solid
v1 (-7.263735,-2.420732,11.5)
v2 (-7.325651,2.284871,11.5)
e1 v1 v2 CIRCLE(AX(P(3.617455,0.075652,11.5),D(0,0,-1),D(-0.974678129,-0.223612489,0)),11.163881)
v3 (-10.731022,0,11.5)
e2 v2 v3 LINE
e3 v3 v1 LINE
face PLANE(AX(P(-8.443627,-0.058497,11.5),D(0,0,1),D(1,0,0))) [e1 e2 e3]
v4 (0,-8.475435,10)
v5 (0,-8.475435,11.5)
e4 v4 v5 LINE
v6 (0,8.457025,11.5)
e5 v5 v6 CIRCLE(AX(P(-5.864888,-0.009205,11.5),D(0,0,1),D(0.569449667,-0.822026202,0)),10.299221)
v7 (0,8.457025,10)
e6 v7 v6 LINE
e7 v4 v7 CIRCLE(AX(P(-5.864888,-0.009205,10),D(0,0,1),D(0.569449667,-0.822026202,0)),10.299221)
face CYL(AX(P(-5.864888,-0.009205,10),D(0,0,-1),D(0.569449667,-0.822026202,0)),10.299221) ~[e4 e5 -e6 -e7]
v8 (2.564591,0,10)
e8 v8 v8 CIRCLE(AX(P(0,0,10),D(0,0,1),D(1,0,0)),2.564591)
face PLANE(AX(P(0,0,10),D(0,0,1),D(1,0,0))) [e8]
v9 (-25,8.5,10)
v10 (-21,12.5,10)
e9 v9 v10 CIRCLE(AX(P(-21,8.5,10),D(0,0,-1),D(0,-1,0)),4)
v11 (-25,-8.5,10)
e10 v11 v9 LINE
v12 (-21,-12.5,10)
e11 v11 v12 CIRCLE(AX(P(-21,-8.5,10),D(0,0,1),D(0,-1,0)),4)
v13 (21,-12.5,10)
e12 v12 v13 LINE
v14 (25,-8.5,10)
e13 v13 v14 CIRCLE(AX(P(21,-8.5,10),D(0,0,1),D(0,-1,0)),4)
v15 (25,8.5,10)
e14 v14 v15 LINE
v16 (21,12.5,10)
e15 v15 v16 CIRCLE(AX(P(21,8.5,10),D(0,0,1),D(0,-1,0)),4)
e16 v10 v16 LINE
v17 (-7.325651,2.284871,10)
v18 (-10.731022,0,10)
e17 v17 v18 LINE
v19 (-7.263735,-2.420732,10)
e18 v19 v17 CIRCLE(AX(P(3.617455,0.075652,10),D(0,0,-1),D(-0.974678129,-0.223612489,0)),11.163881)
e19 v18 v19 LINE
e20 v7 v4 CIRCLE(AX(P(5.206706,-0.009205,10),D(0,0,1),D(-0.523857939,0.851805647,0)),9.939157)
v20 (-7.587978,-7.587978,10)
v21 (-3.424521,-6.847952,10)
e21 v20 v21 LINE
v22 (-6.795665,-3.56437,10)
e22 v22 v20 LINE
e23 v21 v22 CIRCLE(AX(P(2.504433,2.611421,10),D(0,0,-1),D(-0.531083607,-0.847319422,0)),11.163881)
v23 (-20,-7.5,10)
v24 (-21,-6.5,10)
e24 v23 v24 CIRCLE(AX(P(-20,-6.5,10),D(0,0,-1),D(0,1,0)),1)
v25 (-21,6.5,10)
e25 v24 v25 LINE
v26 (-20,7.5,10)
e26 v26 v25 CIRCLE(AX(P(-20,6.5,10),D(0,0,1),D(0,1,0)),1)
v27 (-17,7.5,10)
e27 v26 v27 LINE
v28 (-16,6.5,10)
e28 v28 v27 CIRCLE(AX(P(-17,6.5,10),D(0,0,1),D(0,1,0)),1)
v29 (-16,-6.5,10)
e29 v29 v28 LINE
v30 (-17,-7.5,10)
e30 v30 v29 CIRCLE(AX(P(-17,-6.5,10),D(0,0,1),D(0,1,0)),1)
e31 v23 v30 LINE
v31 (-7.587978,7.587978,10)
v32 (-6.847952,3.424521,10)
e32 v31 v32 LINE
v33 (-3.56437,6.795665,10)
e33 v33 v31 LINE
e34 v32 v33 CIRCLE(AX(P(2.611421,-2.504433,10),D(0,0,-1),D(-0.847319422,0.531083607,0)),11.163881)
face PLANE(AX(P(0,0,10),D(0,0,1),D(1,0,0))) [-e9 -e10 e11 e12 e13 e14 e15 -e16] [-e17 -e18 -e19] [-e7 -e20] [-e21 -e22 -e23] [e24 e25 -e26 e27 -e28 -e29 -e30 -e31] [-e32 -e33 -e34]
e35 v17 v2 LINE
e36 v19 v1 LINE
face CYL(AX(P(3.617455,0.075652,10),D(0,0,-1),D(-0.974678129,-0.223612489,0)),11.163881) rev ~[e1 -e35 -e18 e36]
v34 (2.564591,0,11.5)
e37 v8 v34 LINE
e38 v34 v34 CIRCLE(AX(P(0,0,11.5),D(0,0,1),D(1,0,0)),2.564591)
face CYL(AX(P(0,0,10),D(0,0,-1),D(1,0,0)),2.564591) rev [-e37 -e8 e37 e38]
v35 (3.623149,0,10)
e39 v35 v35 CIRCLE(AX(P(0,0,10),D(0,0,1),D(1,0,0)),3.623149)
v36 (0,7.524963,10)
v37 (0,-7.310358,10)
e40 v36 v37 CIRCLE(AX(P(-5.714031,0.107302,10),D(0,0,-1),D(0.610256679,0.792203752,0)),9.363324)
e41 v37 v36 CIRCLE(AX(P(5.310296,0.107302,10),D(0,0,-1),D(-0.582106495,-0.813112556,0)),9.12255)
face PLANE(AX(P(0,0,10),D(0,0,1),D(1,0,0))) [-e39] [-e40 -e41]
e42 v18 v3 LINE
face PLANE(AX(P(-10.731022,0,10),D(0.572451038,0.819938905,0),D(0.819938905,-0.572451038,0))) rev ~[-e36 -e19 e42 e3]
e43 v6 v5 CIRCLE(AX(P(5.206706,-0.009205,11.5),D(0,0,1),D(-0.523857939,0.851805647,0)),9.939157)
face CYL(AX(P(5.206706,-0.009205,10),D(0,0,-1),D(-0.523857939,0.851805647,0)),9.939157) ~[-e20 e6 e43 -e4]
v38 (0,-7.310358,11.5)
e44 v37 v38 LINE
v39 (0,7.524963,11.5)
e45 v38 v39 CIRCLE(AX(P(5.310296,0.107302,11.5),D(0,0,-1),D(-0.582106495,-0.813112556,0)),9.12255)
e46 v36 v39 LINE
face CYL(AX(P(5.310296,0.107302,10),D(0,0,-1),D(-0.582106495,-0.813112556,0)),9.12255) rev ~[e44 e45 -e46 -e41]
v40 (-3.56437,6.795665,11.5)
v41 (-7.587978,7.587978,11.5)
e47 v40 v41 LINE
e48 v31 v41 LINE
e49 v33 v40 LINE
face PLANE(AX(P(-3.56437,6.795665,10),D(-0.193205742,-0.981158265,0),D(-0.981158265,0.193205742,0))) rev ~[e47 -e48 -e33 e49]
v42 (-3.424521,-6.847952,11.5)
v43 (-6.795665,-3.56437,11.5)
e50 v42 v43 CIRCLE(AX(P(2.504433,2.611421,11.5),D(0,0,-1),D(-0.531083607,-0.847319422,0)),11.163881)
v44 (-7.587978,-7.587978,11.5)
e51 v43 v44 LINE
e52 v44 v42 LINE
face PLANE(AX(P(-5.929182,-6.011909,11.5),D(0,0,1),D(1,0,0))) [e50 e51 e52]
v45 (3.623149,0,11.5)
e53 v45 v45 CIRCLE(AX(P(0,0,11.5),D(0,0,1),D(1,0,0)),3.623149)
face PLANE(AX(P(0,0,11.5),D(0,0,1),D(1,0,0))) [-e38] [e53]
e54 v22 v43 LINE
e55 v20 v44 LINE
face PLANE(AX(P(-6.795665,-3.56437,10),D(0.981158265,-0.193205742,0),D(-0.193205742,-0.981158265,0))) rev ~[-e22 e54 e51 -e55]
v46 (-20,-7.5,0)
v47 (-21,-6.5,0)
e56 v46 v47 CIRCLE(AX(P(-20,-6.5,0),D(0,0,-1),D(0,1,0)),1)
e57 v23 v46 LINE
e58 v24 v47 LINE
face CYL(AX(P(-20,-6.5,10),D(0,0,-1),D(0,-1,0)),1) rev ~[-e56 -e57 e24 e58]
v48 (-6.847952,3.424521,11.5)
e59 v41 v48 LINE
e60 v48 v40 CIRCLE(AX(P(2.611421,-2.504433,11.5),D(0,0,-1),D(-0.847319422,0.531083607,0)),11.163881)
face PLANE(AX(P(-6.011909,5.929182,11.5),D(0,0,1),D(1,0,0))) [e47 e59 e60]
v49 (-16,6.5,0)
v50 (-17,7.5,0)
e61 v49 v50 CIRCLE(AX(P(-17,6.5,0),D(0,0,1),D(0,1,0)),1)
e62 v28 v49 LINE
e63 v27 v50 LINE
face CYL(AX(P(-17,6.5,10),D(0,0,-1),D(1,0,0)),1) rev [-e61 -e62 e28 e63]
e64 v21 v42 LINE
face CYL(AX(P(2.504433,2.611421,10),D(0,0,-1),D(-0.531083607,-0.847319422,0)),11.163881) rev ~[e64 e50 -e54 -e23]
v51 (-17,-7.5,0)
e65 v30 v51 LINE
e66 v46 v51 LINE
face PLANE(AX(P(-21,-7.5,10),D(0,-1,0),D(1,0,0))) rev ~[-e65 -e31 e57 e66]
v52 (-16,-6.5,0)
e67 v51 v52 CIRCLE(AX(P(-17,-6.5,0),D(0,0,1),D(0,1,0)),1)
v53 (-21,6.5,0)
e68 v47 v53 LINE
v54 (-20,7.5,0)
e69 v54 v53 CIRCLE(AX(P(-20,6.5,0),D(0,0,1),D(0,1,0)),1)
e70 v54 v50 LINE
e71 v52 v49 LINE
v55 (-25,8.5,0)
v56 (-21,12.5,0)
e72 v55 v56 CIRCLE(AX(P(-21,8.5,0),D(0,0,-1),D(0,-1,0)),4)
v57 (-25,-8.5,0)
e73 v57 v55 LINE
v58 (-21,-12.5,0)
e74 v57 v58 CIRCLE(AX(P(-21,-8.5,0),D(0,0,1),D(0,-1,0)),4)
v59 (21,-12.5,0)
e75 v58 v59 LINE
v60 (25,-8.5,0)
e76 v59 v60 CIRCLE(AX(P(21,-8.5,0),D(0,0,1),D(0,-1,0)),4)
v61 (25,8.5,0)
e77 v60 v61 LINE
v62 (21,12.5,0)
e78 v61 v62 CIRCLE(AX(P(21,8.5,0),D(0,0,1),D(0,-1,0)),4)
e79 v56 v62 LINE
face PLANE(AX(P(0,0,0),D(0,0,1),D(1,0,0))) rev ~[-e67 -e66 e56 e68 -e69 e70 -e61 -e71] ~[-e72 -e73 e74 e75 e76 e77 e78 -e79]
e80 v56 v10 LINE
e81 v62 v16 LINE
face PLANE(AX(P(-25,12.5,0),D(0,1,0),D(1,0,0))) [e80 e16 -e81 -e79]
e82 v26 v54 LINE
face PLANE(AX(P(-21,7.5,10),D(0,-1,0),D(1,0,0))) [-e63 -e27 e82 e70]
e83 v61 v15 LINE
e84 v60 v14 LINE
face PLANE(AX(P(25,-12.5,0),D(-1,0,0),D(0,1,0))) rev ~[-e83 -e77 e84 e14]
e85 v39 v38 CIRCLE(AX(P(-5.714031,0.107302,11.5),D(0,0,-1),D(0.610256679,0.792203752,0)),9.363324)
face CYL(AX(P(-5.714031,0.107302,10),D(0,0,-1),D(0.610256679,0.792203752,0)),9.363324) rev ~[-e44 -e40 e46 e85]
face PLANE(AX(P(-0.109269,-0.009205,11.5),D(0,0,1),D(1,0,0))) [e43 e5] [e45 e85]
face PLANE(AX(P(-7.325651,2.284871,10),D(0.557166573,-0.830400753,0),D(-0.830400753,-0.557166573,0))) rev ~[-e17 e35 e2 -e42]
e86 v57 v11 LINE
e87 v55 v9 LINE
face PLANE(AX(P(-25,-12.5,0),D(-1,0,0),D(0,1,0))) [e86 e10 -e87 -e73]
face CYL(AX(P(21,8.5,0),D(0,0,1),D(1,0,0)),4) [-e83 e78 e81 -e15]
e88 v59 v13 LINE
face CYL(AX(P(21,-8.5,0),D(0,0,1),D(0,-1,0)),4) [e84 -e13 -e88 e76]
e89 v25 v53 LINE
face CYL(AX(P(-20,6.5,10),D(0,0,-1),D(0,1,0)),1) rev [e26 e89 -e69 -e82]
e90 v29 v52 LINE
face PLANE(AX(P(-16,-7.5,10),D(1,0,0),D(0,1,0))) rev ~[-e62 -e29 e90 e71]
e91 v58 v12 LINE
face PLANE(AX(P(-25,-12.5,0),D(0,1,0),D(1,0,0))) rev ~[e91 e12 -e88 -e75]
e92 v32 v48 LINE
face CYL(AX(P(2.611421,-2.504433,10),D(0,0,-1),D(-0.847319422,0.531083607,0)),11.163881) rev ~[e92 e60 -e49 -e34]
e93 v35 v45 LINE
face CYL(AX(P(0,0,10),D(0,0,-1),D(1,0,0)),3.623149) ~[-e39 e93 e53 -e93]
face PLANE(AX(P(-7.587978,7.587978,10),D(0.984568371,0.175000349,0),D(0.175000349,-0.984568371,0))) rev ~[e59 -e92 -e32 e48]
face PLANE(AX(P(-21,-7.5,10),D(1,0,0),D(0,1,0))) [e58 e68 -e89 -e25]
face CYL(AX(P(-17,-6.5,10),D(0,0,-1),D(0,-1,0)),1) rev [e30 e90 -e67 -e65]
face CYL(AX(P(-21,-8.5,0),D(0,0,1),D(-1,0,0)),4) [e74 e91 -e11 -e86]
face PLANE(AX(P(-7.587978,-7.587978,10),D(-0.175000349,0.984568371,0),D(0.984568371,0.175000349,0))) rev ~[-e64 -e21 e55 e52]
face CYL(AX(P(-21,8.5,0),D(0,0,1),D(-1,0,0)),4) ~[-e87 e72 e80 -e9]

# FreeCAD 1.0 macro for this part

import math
import FreeCAD as App
import Part
import Sketcher

V = App.Vector
Q = App.Units.Quantity


def edges_at(feature, points):
    """Names of the edges that pass closest to the given points."""
    edges = feature.Shape.Edges
    near = lambda p: min(range(len(edges)), key=lambda i: edges[i].distToShape(Part.Vertex(*p))[0])
    return sorted({f"Edge{near(p) + 1}" for p in points})


def add_polygon(sketch, points):
    """Adds a closed chain of lines whose ends are joined by coincident constraints."""
    first, n = sketch.GeometryCount, len(points)
    for a, b in zip(points, points[1:] + points[:1]):
        sketch.addGeometry(Part.LineSegment(App.Vector(*a, 0), App.Vector(*b, 0)), False)
    for i in range(n):
        sketch.addConstraint(Sketcher.Constraint("Coincident", first + i, 2, first + (i + 1) % n, 1))

doc = App.newDocument("Part")
body = doc.addObject("PartDesign::Body", "Body")

# Sketch on XY plane
sketch1 = doc.addObject("Sketcher::SketchObject", "Sketch")
body.addObject(sketch1)
sketch1.AttachmentSupport = (doc.XY_Plane, [""])
sketch1.MapMode = "FlatFace"
add_polygon(sketch1, [(-25, 12), (-25, -12), (25, -12), (25, 12)])  # lines 0-3
sketch1.addConstraint([
    Sketcher.Constraint("Vertical", 0),
    Sketcher.Constraint("Horizontal", 1),
    Sketcher.Constraint("Vertical", 2),
    Sketcher.Constraint("Horizontal", 3),
    Sketcher.Constraint("Symmetric", 0, 2, 2, 2, -1, 1),
    Sketcher.Constraint("DistanceX", 1, 1, 1, 2, Q("50 mm")),
    Sketcher.Constraint("DistanceY", 0, 2, 0, 1, Q("25 mm")),
])
pad1 = doc.addObject("PartDesign::Pad", "Pad")
body.addObject(pad1)
pad1.Profile = sketch1
pad1.Length = 10
doc.recompute()

fillet = doc.addObject("PartDesign::Fillet", "Fillet")
body.addObject(fillet)
fillet.Base = (pad1, edges_at(pad1, [
    (-25, -12.5, 5),
    (25, -12.5, 5),
    (25, 12.5, 5),
    (-25, 12.5, 5),
]))
fillet.Radius = 4

# Sketch on XY plane
sketch2 = doc.addObject("Sketcher::SketchObject", "Sketch001")
body.addObject(sketch2)
sketch2.AttachmentSupport = (doc.XY_Plane, [""])
sketch2.MapMode = "FlatFace"
sketch2.AttachmentOffset = App.Placement(V(0, 0, 10), App.Rotation())
add_polygon(sketch2, [(-21, 8), (-21, -8), (-16, -8), (-16, 8)])  # lines 0-3
sketch2.addConstraint([
    Sketcher.Constraint("Vertical", 0),
    Sketcher.Constraint("Horizontal", 1),
    Sketcher.Constraint("Vertical", 2),
    Sketcher.Constraint("Horizontal", 3),
    Sketcher.Constraint("DistanceX", 1, 1, 1, 2, Q("5 mm")),
    Sketcher.Constraint("DistanceY", 0, 2, 0, 1, Q("15 mm")),
    Sketcher.Constraint("DistanceX", 0, 2, -1, 1, Q("21 mm")),
    Sketcher.Constraint("DistanceY", 0, 2, -1, 1, Q("7.5 mm")),
])
pocket1 = doc.addObject("PartDesign::Pocket", "Pocket")
body.addObject(pocket1)
pocket1.Profile = sketch2
pocket1.Length = 25
doc.recompute()

fillet2 = doc.addObject("PartDesign::Fillet", "Fillet001")
body.addObject(fillet2)
fillet2.Base = (pocket1, edges_at(pocket1, [
    (-21, 7.5, 5),
    (-21, -7.5, 5),
    (-16, 7.5, 5),
    (-16, -7.5, 5),
]))
fillet2.Radius = 1

# Sketch on XY plane
sketch3 = doc.addObject("Sketcher::SketchObject", "Sketch002")
body.addObject(sketch3)
sketch3.AttachmentSupport = (doc.XY_Plane, [""])
sketch3.MapMode = "FlatFace"
sketch3.AttachmentOffset = App.Placement(V(0, 0, 10), App.Rotation())
sketch3.addGeometry([
    Part.ArcOfCircle(Part.Circle(V(-5.9, 0, 0), V(0, 0, 1), 10.3), math.radians(-55), math.radians(55)),  # 0
    Part.ArcOfCircle(Part.Circle(V(5.2, 0, 0), V(0, 0, 1), 9.9), math.radians(122), math.radians(238)),  # 1
    Part.ArcOfCircle(Part.Circle(V(-5.7, 0.1, 0), V(0, 0, 1), 9.4), math.radians(-52), math.radians(52)),  # 2
    Part.ArcOfCircle(Part.Circle(V(5.3, 0.1, 0), V(0, 0, 1), 9.1), math.radians(126), math.radians(234)),  # 3
    Part.Circle(V(0, 0, 0), V(0, 0, 1), 3.6),  # 4
    Part.Circle(V(0, 0, 0), V(0, 0, 1), 2.6),  # 5
    Part.LineSegment(V(-7.6, -7.6, 0), V(-3.4, -6.8, 0)),  # 6
    Part.ArcOfCircle(Part.Circle(V(2.5, 2.6, 0), V(0, 0, 1), 11.2), math.radians(-146), math.radians(-122)),  # 7
    Part.LineSegment(V(-6.8, -3.6, 0), V(-7.6, -7.6, 0)),  # 8
    Part.ArcOfCircle(Part.Circle(V(3.6, 0.1, 0), V(0, 0, 1), 11.2), math.radians(169), math.radians(193)),  # 9
    Part.LineSegment(V(-7.3, 2.3, 0), V(-10.7, 0, 0)),  # 10
    Part.LineSegment(V(-10.7, 0, 0), V(-7.3, -2.4, 0)),  # 11
    Part.LineSegment(V(-3.6, 6.8, 0), V(-7.6, 7.6, 0)),  # 12
    Part.LineSegment(V(-7.6, 7.6, 0), V(-6.8, 3.4, 0)),  # 13
    Part.ArcOfCircle(Part.Circle(V(2.6, -2.5, 0), V(0, 0, 1), 11.2), math.radians(124), math.radians(148)),  # 14
], False)
sketch3.addConstraint([
    Sketcher.Constraint("Coincident", 0, 1, 1, 2),
    Sketcher.Constraint("Coincident", 1, 1, 0, 2),
    Sketcher.Constraint("Coincident", 2, 1, 3, 2),
    Sketcher.Constraint("Coincident", 3, 1, 2, 2),
    Sketcher.Constraint("Coincident", 6, 2, 7, 2),
    Sketcher.Constraint("Coincident", 7, 1, 8, 1),
    Sketcher.Constraint("Coincident", 8, 2, 6, 1),
    Sketcher.Constraint("Coincident", 9, 1, 10, 1),
    Sketcher.Constraint("Coincident", 10, 2, 11, 1),
    Sketcher.Constraint("Coincident", 11, 2, 9, 2),
    Sketcher.Constraint("Coincident", 12, 2, 13, 1),
    Sketcher.Constraint("Coincident", 13, 2, 14, 2),
    Sketcher.Constraint("Coincident", 14, 1, 12, 1),
    Sketcher.Constraint("Coincident", 4, 3, -1, 1),
    Sketcher.Constraint("Coincident", 5, 3, -1, 1),
    Sketcher.Constraint("Equal", 7, 9),
    Sketcher.Constraint("Equal", 9, 14),
    Sketcher.Constraint("Symmetric", 8, 2, 12, 2, -1),
    Sketcher.Constraint("PointOnObject", 0, 1, -2),
    Sketcher.Constraint("PointOnObject", 1, 1, -2),
    Sketcher.Constraint("PointOnObject", 2, 1, -2),
    Sketcher.Constraint("PointOnObject", 3, 1, -2),
    Sketcher.Constraint("PointOnObject", 10, 2, -1),
    Sketcher.Constraint("Perpendicular", 8, 12),
    Sketcher.Constraint("Perpendicular", 6, 13),
    Sketcher.Constraint("Equal", 8, 10),
    Sketcher.Constraint("Equal", 6, 11),
    Sketcher.Constraint("Equal", 10, 12),
    Sketcher.Constraint("Equal", 11, 13),
    Sketcher.Constraint("Radius", 0, Q("10.299221 mm")),
    Sketcher.Constraint("Radius", 3, Q("9.12255 mm")),
    Sketcher.Constraint("Radius", 7, Q("11.163881 mm")),
    Sketcher.Constraint("Diameter", 4, Q("7.246298 mm")),
    Sketcher.Constraint("Diameter", 5, Q("5.129183 mm")),
    Sketcher.Constraint("Radius", 1, Q("9.939157 mm")),
    Sketcher.Constraint("Radius", 2, Q("9.363324 mm")),
    Sketcher.Constraint("DistanceY", 0, 1, 14, 3, Q("5.971002 mm")),
    Sketcher.Constraint("DistanceX", 9, 1, 13, 2, Q("0.477699 mm")),
    Sketcher.Constraint("DistanceX", 0, 3, -1, 1, Q("5.864888 mm")),
    Sketcher.Constraint("DistanceX", 2, 3, -1, 1, Q("5.714031 mm")),
    Sketcher.Constraint("DistanceY", -1, 1, 7, 3, Q("2.611421 mm")),
    Sketcher.Constraint("DistanceY", -1, 1, 9, 3, Q("0.075652 mm")),
    Sketcher.Constraint("DistanceX", -1, 1, 14, 3, Q("2.611421 mm")),
    Sketcher.Constraint("DistanceX", 6, 2, -1, 1, Q("3.424521 mm")),
    Sketcher.Constraint("DistanceY", 6, 2, -1, 1, Q("6.847952 mm")),
    Sketcher.Constraint("DistanceY", 7, 1, -1, 1, Q("3.56437 mm")),
    Sketcher.Constraint("DistanceX", 8, 2, -1, 1, Q("7.587978 mm")),
    Sketcher.Constraint("DistanceY", -1, 1, 9, 1, Q("2.284871 mm")),
    Sketcher.Constraint("DistanceY", 3, 3, 7, 3, Q("2.504118 mm")),
])
pad2 = doc.addObject("PartDesign::Pad", "Pad001")
body.addObject(pad2)
pad2.Profile = sketch3
pad2.Length = 1.5

doc.recompute()
